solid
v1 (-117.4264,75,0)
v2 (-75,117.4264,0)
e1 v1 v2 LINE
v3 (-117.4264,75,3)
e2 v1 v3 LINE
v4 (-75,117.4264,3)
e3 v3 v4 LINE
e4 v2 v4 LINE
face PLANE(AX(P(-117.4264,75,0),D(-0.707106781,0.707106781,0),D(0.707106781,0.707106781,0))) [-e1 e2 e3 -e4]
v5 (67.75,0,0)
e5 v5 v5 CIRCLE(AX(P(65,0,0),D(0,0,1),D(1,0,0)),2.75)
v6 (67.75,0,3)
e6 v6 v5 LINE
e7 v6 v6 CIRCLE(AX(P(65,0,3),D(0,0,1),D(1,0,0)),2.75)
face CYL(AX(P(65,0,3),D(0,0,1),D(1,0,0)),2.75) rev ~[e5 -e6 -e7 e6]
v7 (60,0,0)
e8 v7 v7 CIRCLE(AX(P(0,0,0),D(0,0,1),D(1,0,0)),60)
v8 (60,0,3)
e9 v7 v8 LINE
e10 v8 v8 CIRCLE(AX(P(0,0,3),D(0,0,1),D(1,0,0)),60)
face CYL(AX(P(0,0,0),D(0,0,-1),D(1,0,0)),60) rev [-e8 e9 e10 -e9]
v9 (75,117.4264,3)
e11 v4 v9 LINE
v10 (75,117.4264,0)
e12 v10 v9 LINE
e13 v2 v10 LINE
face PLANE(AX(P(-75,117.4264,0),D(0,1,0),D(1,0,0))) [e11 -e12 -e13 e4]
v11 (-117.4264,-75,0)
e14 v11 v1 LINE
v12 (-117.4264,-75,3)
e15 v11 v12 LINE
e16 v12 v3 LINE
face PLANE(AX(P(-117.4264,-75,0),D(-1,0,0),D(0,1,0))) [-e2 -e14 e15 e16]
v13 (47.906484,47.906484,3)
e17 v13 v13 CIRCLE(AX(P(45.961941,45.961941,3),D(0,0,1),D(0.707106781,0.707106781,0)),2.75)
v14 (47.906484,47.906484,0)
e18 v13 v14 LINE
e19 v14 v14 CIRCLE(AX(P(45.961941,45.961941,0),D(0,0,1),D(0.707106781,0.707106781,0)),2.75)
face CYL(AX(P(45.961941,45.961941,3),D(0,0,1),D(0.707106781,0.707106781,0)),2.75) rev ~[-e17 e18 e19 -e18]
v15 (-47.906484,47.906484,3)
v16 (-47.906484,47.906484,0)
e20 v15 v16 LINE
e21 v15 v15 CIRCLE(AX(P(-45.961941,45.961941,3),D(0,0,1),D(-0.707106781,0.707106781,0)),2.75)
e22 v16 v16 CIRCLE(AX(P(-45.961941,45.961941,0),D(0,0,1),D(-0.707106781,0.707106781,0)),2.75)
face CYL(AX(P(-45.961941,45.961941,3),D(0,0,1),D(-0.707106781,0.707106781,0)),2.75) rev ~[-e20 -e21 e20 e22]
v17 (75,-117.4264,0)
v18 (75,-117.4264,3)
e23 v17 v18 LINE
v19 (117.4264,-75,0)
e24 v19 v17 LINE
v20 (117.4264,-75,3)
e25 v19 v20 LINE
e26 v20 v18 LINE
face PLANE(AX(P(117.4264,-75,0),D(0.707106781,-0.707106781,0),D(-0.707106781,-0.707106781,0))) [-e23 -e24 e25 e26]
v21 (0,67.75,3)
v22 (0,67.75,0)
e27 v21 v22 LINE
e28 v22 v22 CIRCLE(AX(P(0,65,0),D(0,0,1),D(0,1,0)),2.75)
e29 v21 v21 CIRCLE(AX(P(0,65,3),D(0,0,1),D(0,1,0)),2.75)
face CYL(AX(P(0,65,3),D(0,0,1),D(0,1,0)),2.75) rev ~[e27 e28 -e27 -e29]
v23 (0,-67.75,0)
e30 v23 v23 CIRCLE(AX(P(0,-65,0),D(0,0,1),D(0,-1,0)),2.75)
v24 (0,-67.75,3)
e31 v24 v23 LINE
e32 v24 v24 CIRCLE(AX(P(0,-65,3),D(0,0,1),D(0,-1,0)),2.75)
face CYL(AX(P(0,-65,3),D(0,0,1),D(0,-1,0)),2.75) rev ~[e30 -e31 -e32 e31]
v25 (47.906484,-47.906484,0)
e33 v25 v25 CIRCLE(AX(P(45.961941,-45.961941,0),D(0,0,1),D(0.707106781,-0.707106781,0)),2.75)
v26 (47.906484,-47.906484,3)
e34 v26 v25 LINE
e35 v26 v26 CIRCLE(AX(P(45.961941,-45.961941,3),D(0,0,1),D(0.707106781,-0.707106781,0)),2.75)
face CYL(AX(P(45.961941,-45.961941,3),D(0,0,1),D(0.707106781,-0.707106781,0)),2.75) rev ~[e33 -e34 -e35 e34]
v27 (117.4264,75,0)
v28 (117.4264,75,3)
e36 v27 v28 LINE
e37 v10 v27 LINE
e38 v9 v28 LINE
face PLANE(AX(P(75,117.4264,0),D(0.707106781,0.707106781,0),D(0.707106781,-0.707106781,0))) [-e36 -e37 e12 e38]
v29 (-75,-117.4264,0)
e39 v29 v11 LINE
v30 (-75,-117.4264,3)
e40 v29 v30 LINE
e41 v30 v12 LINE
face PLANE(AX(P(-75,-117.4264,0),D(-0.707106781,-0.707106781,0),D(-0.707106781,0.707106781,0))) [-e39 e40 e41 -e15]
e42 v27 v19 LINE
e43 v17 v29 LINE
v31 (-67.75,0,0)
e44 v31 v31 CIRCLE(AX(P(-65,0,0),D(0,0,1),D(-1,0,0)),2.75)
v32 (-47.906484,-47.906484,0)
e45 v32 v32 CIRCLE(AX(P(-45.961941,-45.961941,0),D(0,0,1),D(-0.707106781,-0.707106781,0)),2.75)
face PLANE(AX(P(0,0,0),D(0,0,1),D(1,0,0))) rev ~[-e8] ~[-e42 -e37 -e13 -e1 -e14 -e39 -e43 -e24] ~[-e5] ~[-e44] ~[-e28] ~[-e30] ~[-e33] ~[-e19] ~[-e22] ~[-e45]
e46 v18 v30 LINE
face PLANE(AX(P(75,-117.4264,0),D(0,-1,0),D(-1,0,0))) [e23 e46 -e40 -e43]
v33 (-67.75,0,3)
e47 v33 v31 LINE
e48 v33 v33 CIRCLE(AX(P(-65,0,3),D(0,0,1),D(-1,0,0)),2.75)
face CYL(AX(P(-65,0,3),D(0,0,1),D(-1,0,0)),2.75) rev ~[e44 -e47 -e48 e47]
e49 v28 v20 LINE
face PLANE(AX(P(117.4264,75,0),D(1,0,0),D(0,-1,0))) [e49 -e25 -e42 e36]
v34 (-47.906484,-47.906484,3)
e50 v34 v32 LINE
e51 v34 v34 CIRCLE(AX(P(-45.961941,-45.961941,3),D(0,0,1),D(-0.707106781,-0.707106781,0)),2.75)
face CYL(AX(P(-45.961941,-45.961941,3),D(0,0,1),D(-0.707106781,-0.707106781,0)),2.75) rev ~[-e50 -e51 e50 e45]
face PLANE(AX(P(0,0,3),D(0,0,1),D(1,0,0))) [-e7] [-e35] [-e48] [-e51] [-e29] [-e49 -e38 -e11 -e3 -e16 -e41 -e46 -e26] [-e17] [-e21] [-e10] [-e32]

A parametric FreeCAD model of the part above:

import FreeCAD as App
import Part
import Sketcher
Q = App.Units.Quantity

doc = App.newDocument("Part")
body = doc.addObject("PartDesign::Body", "Body")

# Sketch on XY plane
sketch1 = body.newObject("Sketcher::SketchObject", "Sketch")
sketch1.AttachmentSupport = (doc.getObject("XY_Plane"), [""])
sketch1.MapMode = "FlatFace"
sketch1.addGeometry(Part.LineSegment(App.Vector(-117.4264, 75, 0), App.Vector(-117.4264, -75, 0)), False)
sketch1.addGeometry(Part.LineSegment(App.Vector(-117.4264, -75, 0), App.Vector(-75, -117.4264, 0)), False)
sketch1.addGeometry(Part.LineSegment(App.Vector(-75, -117.4264, 0), App.Vector(75, -117.4264, 0)), False)
sketch1.addGeometry(Part.LineSegment(App.Vector(75, -117.4264, 0), App.Vector(117.4264, -75, 0)), False)
sketch1.addGeometry(Part.LineSegment(App.Vector(117.4264, -75, 0), App.Vector(117.4264, 75, 0)), False)
sketch1.addGeometry(Part.LineSegment(App.Vector(117.4264, 75, 0), App.Vector(75, 117.4264, 0)), False)
sketch1.addGeometry(Part.LineSegment(App.Vector(75, 117.4264, 0), App.Vector(-75, 117.4264, 0)), False)
sketch1.addGeometry(Part.LineSegment(App.Vector(-75, 117.4264, 0), App.Vector(-117.4264, 75, 0)), False)
sketch1.addGeometry(Part.Circle(App.Vector(0, 0, 0), App.Vector(0, 0, 1), 60), False)
sketch1.addConstraint(Sketcher.Constraint("Coincident", 0, 2, 1, 1))
sketch1.addConstraint(Sketcher.Constraint("Coincident", 1, 2, 2, 1))
sketch1.addConstraint(Sketcher.Constraint("Coincident", 2, 2, 3, 1))
sketch1.addConstraint(Sketcher.Constraint("Coincident", 3, 2, 4, 1))
sketch1.addConstraint(Sketcher.Constraint("Coincident", 4, 2, 5, 1))
sketch1.addConstraint(Sketcher.Constraint("Coincident", 5, 2, 6, 1))
sketch1.addConstraint(Sketcher.Constraint("Coincident", 6, 2, 7, 1))
sketch1.addConstraint(Sketcher.Constraint("Coincident", 7, 2, 0, 1))
sketch1.addConstraint(Sketcher.Constraint("Vertical", 0))
sketch1.addConstraint(Sketcher.Constraint("Horizontal", 2))
sketch1.addConstraint(Sketcher.Constraint("Vertical", 4))
sketch1.addConstraint(Sketcher.Constraint("Horizontal", 6))
sketch1.addConstraint(Sketcher.Constraint("Coincident", 8, 3, -1, 1))
sketch1.addConstraint(Sketcher.Constraint("Symmetric", 0, 2, 4, 2, -1, 1))
sketch1.addConstraint(Sketcher.Constraint("Symmetric", 1, 2, 5, 2, -1, 1))
sketch1.addConstraint(Sketcher.Constraint("Perpendicular", 1, 3))
sketch1.addConstraint(Sketcher.Constraint("Perpendicular", 5, 7))
sketch1.addConstraint(Sketcher.Constraint("Horizontal", 0, 2, 3, 2))
sketch1.addConstraint(Sketcher.Constraint("Horizontal", 4, 2, 7, 2))
sketch1.addConstraint(Sketcher.Constraint("Vertical", 2, 2, 5, 2))
sketch1.addConstraint(Sketcher.Constraint("Equal", 6, 0))
sketch1.addConstraint(Sketcher.Constraint("Diameter", 8, Q("120 mm")))
sketch1.addConstraint(Sketcher.Constraint("DistanceX", 2, 1, 2, 2, Q("150 mm")))
sketch1.addConstraint(Sketcher.Constraint("Distance", 1, Q("60 mm")))
pad1 = body.newObject("PartDesign::Pad", "Pad")
pad1.Profile = sketch1
pad1.Length = 3

# Sketch on XY plane
sketch2 = body.newObject("Sketcher::SketchObject", "Sketch001")
sketch2.AttachmentSupport = (doc.getObject("XY_Plane"), [""])
sketch2.MapMode = "FlatFace"
sketch2.AttachmentOffset = App.Placement(App.Vector(0, 0, 3), App.Rotation())
sketch2.addGeometry(Part.Circle(App.Vector(65, 0, 0), App.Vector(0, 0, 1), 2.75), False)
sketch2.addConstraint(Sketcher.Constraint("PointOnObject", 0, 3, -1))
sketch2.addConstraint(Sketcher.Constraint("Diameter", 0, Q("5.5 mm")))
sketch2.addConstraint(Sketcher.Constraint("DistanceX", -1, 1, 0, 3, Q("65 mm")))
pocket1 = body.newObject("PartDesign::Pocket", "Pocket")
pocket1.Profile = sketch2
pocket1.Length = 3
doc.recompute()

polarpattern = body.newObject("PartDesign::PolarPattern", "PolarPattern")
polarpattern.Originals = [pocket1]
polarpattern.Axis = (doc.getObject("Z_Axis"), [""])
polarpattern.Angle = 360
polarpattern.Occurrences = 8
body.Tip = polarpattern

doc.recompute()
